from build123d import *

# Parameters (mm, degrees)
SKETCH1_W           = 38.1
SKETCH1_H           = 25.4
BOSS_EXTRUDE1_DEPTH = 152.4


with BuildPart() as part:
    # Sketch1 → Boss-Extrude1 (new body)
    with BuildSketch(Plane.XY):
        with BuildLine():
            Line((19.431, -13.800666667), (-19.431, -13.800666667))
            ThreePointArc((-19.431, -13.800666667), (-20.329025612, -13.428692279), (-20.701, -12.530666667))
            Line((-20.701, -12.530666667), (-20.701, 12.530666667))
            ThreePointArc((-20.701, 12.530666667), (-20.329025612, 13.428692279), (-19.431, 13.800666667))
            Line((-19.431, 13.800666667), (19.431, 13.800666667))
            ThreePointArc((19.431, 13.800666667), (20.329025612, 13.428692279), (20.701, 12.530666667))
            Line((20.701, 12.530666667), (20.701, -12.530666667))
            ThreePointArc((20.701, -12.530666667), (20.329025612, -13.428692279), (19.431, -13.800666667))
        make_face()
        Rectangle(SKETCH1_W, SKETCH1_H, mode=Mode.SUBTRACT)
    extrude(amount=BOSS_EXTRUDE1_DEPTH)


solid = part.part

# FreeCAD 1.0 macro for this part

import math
import FreeCAD as App
import Part
import Sketcher
from FreeCAD import Vector
Q = App.Units.Quantity


def add_polygon(sketch, points):
    """Adds a closed chain of lines whose ends are joined by coincident constraints."""
    first, n = sketch.GeometryCount, len(points)
    for a, b in zip(points, points[1:] + points[:1]):
        sketch.addGeometry(Part.LineSegment(App.Vector(*a, 0), App.Vector(*b, 0)), False)
    for i in range(n):
        sketch.addConstraint(Sketcher.Constraint("Coincident", first + i, 2, first + (i + 1) % n, 1))

doc = App.newDocument("Part")
params = doc.addObject("Spreadsheet::Sheet", "Params")
for row, (alias, value) in enumerate([
    ("sketch1_height", "1 in"),
    ("sketch1_radius", "0.05 in"),
    ("sketch1_width", "1.5 in"),
    ("sketch1_width2", "1.53 in"),
    ("pad1_length", "6 in"),
], start=1):
    params.set(f"A{row}", alias)
    params.set(f"B{row}", "=" + value)
    params.setAlias(f"B{row}", alias)

body = doc.addObject("PartDesign::Body", "Body")

sketch1 = doc.addObject("Sketcher::SketchObject", "Sketch")
body.addObject(sketch1)
sketch1.AttachmentSupport = (doc.XY_Plane, [""])
sketch1.MapMode = "FlatFace"
sketch1.addGeometry(Part.LineSegment(Vector(-19.4, -13.8, 0), Vector(19.4, -13.8, 0)), False)
sketch1.addGeometry(Part.ArcOfCircle(Part.Circle(Vector(19.4, -12.5, 0), Vector(0, 0, 1), 1.3), math.radians(-90), math.radians(0)), False)
sketch1.addGeometry(Part.LineSegment(Vector(20.7, -12.5, 0), Vector(20.7, 12.5, 0)), False)
sketch1.addGeometry(Part.ArcOfCircle(Part.Circle(Vector(19.4, 12.5, 0), Vector(0, 0, 1), 1.3), math.radians(0), math.radians(90)), False)
sketch1.addGeometry(Part.LineSegment(Vector(19.4, 13.8, 0), Vector(-19.4, 13.8, 0)), False)
sketch1.addGeometry(Part.ArcOfCircle(Part.Circle(Vector(-19.4, 12.5, 0), Vector(0, 0, 1), 1.3), math.radians(90), math.radians(180)), False)
sketch1.addGeometry(Part.LineSegment(Vector(-20.7, 12.5, 0), Vector(-20.7, -12.5, 0)), False)
sketch1.addGeometry(Part.ArcOfCircle(Part.Circle(Vector(-19.4, -12.5, 0), Vector(0, 0, 1), 1.3), math.radians(180), math.radians(270)), False)
add_polygon(sketch1, [(-19.1, -12.7), (-19.1, 12.7), (19.1, 12.7), (19.1, -12.7)])
sketch1.addConstraint([
    Sketcher.Constraint("Tangent", 0, 2, 1, 1),
    Sketcher.Constraint("Tangent", 1, 2, 2, 1),
    Sketcher.Constraint("Tangent", 2, 2, 3, 1),
    Sketcher.Constraint("Tangent", 3, 2, 4, 1),
    Sketcher.Constraint("Tangent", 4, 2, 5, 1),
    Sketcher.Constraint("Tangent", 5, 2, 6, 1),
    Sketcher.Constraint("Tangent", 6, 2, 7, 1),
    Sketcher.Constraint("Tangent", 7, 2, 0, 1),
    Sketcher.Constraint("Horizontal", 0),
    Sketcher.Constraint("Vertical", 2),
    Sketcher.Constraint("Horizontal", 4),
    Sketcher.Constraint("Vertical", 6),
    Sketcher.Constraint("Vertical", 8),
    Sketcher.Constraint("Horizontal", 9),
    Sketcher.Constraint("Vertical", 10),
    Sketcher.Constraint("Horizontal", 11),
    Sketcher.Constraint("Equal", 1, 3),
    Sketcher.Constraint("Equal", 3, 5),
    Sketcher.Constraint("Equal", 5, 7),
    Sketcher.Constraint("Symmetric", 1, 3, 5, 3, -1, 1),
    Sketcher.Constraint("Symmetric", 8, 2, 10, 2, -1, 1),
    Sketcher.Constraint("DistanceY", 8, 1, 8, 2, Q("1 in")),
    Sketcher.Constraint("Radius", 1, Q("0.05 in")),
    Sketcher.Constraint("DistanceX", 9, 1, 9, 2, Q("1.5 in")),
    Sketcher.Constraint("DistanceX", 0, 1, 0, 2, Q("1.53 in")),
    Sketcher.Constraint("DistanceY", 2, 1, 2, 2, Q("25.061333 mm")),
])
sketch1.setExpression("Constraints[25]", "Params.sketch1_height")
sketch1.setExpression("Constraints[26]", "Params.sketch1_radius")
sketch1.setExpression("Constraints[27]", "Params.sketch1_width")
sketch1.setExpression("Constraints[28]", "Params.sketch1_width2")
pad1 = doc.addObject("PartDesign::Pad", "Pad")
body.addObject(pad1)
pad1.Profile = sketch1
pad1.setExpression("Length", "Params.pad1_length")

doc.recompute()
